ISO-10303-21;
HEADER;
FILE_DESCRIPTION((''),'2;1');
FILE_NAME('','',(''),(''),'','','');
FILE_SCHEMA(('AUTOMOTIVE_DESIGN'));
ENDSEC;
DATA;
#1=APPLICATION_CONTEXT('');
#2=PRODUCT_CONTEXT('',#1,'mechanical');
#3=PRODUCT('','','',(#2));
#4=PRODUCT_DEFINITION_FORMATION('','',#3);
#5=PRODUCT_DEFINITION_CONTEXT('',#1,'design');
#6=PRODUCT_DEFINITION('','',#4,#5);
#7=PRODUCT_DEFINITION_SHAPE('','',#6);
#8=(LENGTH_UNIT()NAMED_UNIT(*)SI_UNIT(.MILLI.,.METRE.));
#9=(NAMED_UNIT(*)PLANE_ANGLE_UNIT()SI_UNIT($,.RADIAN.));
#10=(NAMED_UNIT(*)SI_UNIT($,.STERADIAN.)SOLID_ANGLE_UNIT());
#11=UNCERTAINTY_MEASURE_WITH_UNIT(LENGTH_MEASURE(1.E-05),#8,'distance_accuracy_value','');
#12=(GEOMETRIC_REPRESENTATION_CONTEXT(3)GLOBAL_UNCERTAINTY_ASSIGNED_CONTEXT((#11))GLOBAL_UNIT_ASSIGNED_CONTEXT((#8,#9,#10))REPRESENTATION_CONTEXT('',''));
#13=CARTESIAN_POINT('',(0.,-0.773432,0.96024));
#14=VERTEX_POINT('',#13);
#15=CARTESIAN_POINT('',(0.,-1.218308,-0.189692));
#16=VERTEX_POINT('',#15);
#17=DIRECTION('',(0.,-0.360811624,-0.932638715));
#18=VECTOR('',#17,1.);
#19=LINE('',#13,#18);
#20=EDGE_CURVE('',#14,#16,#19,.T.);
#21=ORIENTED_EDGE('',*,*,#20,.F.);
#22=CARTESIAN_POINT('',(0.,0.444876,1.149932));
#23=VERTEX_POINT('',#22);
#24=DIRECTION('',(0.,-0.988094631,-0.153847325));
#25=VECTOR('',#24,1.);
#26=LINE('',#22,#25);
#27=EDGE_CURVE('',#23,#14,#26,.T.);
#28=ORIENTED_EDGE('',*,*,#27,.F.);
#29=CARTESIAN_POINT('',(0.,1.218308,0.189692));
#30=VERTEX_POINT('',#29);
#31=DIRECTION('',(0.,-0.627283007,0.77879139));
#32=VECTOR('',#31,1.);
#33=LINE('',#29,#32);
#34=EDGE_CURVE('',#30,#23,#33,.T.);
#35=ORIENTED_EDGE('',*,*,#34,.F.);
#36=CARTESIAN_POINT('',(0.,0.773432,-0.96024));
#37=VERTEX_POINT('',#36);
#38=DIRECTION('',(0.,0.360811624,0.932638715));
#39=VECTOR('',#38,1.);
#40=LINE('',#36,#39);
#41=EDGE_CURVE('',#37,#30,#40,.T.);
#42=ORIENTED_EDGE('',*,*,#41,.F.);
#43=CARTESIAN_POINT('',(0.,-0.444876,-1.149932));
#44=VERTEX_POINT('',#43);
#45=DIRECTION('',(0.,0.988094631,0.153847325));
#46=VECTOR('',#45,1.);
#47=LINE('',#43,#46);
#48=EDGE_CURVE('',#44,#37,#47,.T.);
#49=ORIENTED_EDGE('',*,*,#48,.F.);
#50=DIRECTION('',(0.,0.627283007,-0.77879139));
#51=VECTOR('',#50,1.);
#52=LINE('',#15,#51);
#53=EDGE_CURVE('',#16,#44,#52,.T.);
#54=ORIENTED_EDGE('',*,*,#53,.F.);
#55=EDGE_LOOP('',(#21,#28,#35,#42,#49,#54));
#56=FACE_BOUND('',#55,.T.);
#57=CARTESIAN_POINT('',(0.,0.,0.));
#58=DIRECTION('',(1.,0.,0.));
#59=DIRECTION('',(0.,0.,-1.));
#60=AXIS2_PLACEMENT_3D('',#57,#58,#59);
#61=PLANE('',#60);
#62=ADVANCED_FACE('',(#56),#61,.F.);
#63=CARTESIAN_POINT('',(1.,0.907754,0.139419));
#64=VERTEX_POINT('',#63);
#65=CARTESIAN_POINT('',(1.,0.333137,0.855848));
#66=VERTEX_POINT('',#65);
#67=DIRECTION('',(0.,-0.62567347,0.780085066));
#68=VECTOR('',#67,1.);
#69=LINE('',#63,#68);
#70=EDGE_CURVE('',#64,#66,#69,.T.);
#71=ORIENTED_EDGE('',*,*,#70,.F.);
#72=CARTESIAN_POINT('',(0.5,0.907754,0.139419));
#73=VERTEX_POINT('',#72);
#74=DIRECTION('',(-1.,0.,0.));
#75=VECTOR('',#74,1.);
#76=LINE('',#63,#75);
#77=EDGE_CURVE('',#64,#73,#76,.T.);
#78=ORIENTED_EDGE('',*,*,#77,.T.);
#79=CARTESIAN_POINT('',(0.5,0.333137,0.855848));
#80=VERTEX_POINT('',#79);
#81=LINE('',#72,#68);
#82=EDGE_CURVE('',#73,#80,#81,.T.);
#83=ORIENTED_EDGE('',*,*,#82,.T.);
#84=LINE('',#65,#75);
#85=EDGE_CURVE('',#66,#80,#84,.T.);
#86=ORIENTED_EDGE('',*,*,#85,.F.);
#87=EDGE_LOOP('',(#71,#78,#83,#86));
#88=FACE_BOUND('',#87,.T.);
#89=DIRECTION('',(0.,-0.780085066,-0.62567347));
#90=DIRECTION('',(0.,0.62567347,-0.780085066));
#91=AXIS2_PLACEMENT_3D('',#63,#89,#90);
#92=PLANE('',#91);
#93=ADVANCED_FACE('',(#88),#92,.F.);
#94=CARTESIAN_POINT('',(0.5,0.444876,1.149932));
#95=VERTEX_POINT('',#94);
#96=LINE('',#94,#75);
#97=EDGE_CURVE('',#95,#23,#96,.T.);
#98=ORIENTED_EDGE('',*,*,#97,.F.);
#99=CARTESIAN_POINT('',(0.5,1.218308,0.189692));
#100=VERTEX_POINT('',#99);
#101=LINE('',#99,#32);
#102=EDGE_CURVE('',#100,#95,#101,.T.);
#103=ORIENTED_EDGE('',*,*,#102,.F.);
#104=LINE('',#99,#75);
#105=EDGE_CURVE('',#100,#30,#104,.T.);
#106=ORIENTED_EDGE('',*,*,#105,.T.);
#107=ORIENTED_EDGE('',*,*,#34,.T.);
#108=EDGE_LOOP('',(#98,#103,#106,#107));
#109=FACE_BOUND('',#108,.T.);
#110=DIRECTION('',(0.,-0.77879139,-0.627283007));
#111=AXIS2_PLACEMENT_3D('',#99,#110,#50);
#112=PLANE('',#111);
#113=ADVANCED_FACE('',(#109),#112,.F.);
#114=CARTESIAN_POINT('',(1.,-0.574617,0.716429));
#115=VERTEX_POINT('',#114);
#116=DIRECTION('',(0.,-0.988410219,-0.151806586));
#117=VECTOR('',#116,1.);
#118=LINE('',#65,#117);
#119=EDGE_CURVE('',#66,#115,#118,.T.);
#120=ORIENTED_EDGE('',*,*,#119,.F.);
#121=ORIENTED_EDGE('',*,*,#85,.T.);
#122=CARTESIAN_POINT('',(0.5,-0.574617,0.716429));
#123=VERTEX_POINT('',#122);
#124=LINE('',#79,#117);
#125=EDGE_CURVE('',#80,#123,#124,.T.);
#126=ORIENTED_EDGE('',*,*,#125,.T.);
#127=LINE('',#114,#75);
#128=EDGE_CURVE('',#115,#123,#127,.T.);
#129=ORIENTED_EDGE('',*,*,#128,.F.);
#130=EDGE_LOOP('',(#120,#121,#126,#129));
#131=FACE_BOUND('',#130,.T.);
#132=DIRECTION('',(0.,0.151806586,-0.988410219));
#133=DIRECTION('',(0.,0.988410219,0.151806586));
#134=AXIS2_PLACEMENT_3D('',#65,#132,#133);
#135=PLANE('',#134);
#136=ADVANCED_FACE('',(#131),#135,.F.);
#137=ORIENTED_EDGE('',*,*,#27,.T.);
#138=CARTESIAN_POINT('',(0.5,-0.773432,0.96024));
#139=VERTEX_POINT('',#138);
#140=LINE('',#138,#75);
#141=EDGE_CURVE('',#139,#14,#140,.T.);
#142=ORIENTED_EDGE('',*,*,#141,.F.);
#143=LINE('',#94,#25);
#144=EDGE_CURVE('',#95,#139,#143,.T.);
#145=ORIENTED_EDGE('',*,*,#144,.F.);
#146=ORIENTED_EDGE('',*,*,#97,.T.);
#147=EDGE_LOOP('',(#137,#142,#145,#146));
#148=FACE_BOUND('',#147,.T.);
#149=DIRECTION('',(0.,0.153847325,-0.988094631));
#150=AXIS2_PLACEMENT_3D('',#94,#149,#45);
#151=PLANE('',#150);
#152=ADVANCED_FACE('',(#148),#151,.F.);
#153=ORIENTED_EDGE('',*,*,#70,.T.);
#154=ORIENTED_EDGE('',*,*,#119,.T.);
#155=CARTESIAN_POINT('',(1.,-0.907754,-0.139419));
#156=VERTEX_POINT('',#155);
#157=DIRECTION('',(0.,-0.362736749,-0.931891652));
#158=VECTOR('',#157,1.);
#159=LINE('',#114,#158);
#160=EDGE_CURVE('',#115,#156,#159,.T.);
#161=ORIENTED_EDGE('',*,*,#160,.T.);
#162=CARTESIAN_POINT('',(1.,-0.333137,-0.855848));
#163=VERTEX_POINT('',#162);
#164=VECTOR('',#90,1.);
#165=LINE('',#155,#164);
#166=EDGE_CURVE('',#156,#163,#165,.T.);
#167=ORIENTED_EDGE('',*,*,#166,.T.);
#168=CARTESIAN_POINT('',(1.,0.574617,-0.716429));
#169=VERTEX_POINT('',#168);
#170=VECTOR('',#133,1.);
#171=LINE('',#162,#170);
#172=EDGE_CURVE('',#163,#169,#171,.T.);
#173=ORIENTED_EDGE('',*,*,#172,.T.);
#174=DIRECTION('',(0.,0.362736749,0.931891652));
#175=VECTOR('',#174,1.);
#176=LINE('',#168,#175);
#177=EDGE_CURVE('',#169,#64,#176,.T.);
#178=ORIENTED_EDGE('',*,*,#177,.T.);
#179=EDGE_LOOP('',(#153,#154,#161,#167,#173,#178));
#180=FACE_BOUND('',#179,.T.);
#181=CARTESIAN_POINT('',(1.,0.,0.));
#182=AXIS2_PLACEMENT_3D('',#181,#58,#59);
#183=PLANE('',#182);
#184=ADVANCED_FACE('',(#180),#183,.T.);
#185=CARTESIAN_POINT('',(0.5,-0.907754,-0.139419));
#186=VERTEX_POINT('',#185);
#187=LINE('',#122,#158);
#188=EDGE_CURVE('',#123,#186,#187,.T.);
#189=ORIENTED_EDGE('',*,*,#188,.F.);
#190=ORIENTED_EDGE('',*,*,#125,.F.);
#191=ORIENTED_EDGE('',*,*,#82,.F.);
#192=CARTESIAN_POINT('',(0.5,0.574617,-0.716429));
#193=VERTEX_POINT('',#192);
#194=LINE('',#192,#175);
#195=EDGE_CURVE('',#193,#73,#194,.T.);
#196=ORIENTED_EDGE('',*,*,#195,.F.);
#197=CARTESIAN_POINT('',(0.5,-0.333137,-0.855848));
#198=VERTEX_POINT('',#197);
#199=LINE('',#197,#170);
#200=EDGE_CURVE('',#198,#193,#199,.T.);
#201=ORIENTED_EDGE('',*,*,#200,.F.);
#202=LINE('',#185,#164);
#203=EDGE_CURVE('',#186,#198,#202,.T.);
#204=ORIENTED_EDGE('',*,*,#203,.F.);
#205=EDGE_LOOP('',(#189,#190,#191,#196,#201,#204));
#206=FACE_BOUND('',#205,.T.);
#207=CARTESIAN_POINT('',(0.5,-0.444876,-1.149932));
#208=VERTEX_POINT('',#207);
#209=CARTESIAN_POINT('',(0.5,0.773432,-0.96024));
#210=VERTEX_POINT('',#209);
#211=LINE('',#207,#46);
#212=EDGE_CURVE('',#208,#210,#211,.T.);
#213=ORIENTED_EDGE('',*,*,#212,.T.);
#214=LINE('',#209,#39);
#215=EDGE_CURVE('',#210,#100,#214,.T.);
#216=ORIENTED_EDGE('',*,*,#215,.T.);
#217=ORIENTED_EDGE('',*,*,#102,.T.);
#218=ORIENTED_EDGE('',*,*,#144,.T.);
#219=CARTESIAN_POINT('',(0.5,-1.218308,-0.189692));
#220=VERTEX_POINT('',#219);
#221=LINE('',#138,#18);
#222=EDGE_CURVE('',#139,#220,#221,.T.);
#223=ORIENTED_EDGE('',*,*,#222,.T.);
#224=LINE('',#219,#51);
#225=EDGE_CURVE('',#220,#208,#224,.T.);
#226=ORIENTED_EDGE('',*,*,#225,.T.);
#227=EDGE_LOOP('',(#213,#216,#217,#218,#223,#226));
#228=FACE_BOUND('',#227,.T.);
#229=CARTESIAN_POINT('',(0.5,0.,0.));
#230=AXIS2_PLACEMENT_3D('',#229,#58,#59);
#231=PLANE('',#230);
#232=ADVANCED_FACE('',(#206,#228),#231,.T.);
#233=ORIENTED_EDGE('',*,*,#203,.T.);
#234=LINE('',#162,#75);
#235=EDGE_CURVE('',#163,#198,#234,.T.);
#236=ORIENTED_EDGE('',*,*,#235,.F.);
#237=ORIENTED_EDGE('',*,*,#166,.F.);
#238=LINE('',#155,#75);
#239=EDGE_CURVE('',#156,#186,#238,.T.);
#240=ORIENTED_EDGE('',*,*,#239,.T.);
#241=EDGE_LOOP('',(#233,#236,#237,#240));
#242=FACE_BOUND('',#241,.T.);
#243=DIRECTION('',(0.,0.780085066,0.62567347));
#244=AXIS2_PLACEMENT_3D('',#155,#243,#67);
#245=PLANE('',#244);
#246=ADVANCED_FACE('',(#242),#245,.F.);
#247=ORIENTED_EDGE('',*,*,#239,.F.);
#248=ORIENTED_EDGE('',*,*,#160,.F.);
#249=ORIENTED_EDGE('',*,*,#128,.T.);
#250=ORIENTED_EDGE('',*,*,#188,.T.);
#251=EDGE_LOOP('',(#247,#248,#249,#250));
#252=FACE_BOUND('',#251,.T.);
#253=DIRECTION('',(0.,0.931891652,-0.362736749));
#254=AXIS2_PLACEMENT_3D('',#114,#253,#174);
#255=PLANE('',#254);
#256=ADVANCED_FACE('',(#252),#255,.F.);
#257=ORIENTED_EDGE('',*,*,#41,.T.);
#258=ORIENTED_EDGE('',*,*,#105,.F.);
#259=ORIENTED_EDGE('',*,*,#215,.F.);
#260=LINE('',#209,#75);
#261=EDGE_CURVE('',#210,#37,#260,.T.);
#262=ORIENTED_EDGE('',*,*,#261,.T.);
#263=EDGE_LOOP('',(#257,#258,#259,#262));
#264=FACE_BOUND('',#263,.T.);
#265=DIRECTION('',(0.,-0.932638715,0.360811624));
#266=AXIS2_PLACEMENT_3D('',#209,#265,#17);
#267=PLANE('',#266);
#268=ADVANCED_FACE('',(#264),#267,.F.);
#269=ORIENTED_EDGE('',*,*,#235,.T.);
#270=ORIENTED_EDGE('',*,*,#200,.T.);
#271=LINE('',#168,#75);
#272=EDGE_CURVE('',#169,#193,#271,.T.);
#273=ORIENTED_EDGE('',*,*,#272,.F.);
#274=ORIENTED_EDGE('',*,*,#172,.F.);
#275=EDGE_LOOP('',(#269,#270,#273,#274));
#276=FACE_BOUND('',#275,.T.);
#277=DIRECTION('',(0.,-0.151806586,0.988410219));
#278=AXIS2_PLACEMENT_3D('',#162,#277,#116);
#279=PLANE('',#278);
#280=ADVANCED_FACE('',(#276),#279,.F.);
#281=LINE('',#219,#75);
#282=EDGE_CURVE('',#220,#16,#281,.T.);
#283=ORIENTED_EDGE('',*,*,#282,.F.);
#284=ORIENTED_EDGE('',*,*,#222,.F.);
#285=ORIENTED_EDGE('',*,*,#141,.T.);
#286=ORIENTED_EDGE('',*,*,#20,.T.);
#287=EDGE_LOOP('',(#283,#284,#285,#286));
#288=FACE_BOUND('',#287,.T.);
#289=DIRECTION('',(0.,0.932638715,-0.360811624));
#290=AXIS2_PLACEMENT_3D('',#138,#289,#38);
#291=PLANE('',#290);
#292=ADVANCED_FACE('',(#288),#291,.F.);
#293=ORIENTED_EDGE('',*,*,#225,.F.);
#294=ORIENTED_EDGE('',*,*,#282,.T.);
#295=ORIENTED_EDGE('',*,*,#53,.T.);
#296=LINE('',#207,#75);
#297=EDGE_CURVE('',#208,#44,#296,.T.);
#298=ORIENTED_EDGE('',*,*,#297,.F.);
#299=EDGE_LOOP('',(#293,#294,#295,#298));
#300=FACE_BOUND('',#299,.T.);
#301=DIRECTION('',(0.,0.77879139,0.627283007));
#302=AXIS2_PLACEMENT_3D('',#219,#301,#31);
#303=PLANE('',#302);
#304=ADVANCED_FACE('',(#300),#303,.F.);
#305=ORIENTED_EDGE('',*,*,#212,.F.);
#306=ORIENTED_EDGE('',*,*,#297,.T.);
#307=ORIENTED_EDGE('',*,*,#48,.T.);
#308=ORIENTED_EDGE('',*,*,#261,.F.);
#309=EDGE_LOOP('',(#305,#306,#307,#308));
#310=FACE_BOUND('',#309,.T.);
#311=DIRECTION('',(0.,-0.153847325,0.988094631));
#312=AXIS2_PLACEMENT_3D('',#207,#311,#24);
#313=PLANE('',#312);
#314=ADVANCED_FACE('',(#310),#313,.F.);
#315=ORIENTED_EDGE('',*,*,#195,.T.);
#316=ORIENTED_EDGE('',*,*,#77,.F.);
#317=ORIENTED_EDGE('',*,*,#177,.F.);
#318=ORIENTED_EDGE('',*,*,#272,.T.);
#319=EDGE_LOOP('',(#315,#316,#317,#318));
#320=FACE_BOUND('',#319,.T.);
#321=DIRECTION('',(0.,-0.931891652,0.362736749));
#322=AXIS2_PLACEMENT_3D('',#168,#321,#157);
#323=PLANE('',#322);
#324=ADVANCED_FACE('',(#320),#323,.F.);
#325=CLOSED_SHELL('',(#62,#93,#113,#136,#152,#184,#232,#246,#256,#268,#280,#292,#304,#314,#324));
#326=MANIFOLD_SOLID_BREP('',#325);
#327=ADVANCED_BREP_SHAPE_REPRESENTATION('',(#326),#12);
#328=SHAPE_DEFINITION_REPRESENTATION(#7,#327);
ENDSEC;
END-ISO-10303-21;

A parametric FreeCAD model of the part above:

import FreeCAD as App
import Part
import Sketcher

V = App.Vector
Q = App.Units.Quantity

doc = App.newDocument("Part")
params = doc.addObject("Spreadsheet::Sheet", "Params")
for row, (alias, value) in enumerate([
    ("pad1_length", "0.5 mm"),
    ("pad2_length", "0.5 mm"),
], start=1):
    params.set(f"A{row}", alias)
    params.set(f"B{row}", "=" + value)
    params.setAlias(f"B{row}", alias)

body = doc.addObject("PartDesign::Body", "Body")

# Sketch on YZ plane
sketch1 = doc.addObject("Sketcher::SketchObject", "Sketch")
body.addObject(sketch1)
sketch1.AttachmentSupport = (doc.YZ_Plane, [""])
sketch1.MapMode = "FlatFace"
sketch1.addGeometry(Part.LineSegment(V(-1.2, -0.2, 0), V(-0.4, -1.1, 0)), False)
sketch1.addGeometry(Part.LineSegment(V(-0.4, -1.1, 0), V(0.8, -1, 0)), False)
sketch1.addGeometry(Part.LineSegment(V(0.8, -1, 0), V(1.2, 0.2, 0)), False)
sketch1.addGeometry(Part.LineSegment(V(1.2, 0.2, 0), V(0.4, 1.1, 0)), False)
sketch1.addGeometry(Part.LineSegment(V(0.4, 1.1, 0), V(-0.8, 1, 0)), False)
sketch1.addGeometry(Part.LineSegment(V(-0.8, 1, 0), V(-1.2, -0.2, 0)), False)
sketch1.addConstraint(Sketcher.Constraint("Coincident", 0, 2, 1, 1))
sketch1.addConstraint(Sketcher.Constraint("Coincident", 1, 2, 2, 1))
sketch1.addConstraint(Sketcher.Constraint("Coincident", 2, 2, 3, 1))
sketch1.addConstraint(Sketcher.Constraint("Coincident", 3, 2, 4, 1))
sketch1.addConstraint(Sketcher.Constraint("Coincident", 4, 2, 5, 1))
sketch1.addConstraint(Sketcher.Constraint("Coincident", 5, 2, 0, 1))
sketch1.addConstraint(Sketcher.Constraint("Symmetric", 0, 2, 3, 2, -1, 1))
sketch1.addConstraint(Sketcher.Constraint("Symmetric", 1, 2, 4, 2, -1, 1))
sketch1.addConstraint(Sketcher.Constraint("Symmetric", 2, 2, 5, 2, -1, 1))
sketch1.addConstraint(Sketcher.Constraint("Equal", 0, 1))
sketch1.addConstraint(Sketcher.Constraint("Equal", 1, 2))
sketch1.addConstraint(Sketcher.Constraint("DistanceY", 0, 2, -1, 1, Q("1.149932 mm")))
sketch1.addConstraint(Sketcher.Constraint("DistanceY", 1, 2, -1, 1, Q("0.96024 mm")))
sketch1.addConstraint(Sketcher.Constraint("DistanceX", -1, 1, 2, 2, Q("1.218308 mm")))
sketch1.addConstraint(Sketcher.Constraint("DistanceY", -1, 1, 2, 2, Q("0.189692 mm")))
pad1 = doc.addObject("PartDesign::Pad", "Pad")
body.addObject(pad1)
pad1.Profile = sketch1
pad1.setExpression("Length", "Params.pad1_length")

# Sketch on YZ plane
sketch2 = doc.addObject("Sketcher::SketchObject", "Sketch001")
body.addObject(sketch2)
sketch2.AttachmentSupport = (doc.YZ_Plane, [""])
sketch2.MapMode = "FlatFace"
sketch2.AttachmentOffset = App.Placement(V(0, 0, 0.5), App.Rotation())
sketch2.addGeometry(Part.LineSegment(V(-0.9, -0.1, 0), V(-0.3, -0.9, 0)), False)
sketch2.addGeometry(Part.LineSegment(V(-0.3, -0.9, 0), V(0.6, -0.7, 0)), False)
sketch2.addGeometry(Part.LineSegment(V(0.6, -0.7, 0), V(0.9, 0.1, 0)), False)
sketch2.addGeometry(Part.LineSegment(V(0.9, 0.1, 0), V(0.3, 0.9, 0)), False)
sketch2.addGeometry(Part.LineSegment(V(0.3, 0.9, 0), V(-0.6, 0.7, 0)), False)
sketch2.addGeometry(Part.LineSegment(V(-0.6, 0.7, 0), V(-0.9, -0.1, 0)), False)
sketch2.addConstraint(Sketcher.Constraint("Coincident", 0, 2, 1, 1))
sketch2.addConstraint(Sketcher.Constraint("Coincident", 1, 2, 2, 1))
sketch2.addConstraint(Sketcher.Constraint("Coincident", 2, 2, 3, 1))
sketch2.addConstraint(Sketcher.Constraint("Coincident", 3, 2, 4, 1))
sketch2.addConstraint(Sketcher.Constraint("Coincident", 4, 2, 5, 1))
sketch2.addConstraint(Sketcher.Constraint("Coincident", 5, 2, 0, 1))
sketch2.addConstraint(Sketcher.Constraint("Symmetric", 0, 2, 3, 2, -1, 1))
sketch2.addConstraint(Sketcher.Constraint("Symmetric", 1, 2, 4, 2, -1, 1))
sketch2.addConstraint(Sketcher.Constraint("Symmetric", 2, 2, 5, 2, -1, 1))
sketch2.addConstraint(Sketcher.Constraint("Equal", 0, 1))
sketch2.addConstraint(Sketcher.Constraint("Equal", 1, 2))
sketch2.addConstraint(Sketcher.Constraint("Distance", 0, Q("0.918398 mm")))
sketch2.addConstraint(Sketcher.Constraint("DistanceY", 1, 2, -1, 1, Q("0.716429 mm")))
sketch2.addConstraint(Sketcher.Constraint("DistanceY", -1, 1, 2, 2, Q("0.139419 mm")))
sketch2.addConstraint(Sketcher.Constraint("DistanceY", 0, 2, 1, 2, Q("0.139419 mm")))
pad2 = doc.addObject("PartDesign::Pad", "Pad001")
body.addObject(pad2)
pad2.Profile = sketch2
pad2.setExpression("Length", "Params.pad2_length")

doc.recompute()
